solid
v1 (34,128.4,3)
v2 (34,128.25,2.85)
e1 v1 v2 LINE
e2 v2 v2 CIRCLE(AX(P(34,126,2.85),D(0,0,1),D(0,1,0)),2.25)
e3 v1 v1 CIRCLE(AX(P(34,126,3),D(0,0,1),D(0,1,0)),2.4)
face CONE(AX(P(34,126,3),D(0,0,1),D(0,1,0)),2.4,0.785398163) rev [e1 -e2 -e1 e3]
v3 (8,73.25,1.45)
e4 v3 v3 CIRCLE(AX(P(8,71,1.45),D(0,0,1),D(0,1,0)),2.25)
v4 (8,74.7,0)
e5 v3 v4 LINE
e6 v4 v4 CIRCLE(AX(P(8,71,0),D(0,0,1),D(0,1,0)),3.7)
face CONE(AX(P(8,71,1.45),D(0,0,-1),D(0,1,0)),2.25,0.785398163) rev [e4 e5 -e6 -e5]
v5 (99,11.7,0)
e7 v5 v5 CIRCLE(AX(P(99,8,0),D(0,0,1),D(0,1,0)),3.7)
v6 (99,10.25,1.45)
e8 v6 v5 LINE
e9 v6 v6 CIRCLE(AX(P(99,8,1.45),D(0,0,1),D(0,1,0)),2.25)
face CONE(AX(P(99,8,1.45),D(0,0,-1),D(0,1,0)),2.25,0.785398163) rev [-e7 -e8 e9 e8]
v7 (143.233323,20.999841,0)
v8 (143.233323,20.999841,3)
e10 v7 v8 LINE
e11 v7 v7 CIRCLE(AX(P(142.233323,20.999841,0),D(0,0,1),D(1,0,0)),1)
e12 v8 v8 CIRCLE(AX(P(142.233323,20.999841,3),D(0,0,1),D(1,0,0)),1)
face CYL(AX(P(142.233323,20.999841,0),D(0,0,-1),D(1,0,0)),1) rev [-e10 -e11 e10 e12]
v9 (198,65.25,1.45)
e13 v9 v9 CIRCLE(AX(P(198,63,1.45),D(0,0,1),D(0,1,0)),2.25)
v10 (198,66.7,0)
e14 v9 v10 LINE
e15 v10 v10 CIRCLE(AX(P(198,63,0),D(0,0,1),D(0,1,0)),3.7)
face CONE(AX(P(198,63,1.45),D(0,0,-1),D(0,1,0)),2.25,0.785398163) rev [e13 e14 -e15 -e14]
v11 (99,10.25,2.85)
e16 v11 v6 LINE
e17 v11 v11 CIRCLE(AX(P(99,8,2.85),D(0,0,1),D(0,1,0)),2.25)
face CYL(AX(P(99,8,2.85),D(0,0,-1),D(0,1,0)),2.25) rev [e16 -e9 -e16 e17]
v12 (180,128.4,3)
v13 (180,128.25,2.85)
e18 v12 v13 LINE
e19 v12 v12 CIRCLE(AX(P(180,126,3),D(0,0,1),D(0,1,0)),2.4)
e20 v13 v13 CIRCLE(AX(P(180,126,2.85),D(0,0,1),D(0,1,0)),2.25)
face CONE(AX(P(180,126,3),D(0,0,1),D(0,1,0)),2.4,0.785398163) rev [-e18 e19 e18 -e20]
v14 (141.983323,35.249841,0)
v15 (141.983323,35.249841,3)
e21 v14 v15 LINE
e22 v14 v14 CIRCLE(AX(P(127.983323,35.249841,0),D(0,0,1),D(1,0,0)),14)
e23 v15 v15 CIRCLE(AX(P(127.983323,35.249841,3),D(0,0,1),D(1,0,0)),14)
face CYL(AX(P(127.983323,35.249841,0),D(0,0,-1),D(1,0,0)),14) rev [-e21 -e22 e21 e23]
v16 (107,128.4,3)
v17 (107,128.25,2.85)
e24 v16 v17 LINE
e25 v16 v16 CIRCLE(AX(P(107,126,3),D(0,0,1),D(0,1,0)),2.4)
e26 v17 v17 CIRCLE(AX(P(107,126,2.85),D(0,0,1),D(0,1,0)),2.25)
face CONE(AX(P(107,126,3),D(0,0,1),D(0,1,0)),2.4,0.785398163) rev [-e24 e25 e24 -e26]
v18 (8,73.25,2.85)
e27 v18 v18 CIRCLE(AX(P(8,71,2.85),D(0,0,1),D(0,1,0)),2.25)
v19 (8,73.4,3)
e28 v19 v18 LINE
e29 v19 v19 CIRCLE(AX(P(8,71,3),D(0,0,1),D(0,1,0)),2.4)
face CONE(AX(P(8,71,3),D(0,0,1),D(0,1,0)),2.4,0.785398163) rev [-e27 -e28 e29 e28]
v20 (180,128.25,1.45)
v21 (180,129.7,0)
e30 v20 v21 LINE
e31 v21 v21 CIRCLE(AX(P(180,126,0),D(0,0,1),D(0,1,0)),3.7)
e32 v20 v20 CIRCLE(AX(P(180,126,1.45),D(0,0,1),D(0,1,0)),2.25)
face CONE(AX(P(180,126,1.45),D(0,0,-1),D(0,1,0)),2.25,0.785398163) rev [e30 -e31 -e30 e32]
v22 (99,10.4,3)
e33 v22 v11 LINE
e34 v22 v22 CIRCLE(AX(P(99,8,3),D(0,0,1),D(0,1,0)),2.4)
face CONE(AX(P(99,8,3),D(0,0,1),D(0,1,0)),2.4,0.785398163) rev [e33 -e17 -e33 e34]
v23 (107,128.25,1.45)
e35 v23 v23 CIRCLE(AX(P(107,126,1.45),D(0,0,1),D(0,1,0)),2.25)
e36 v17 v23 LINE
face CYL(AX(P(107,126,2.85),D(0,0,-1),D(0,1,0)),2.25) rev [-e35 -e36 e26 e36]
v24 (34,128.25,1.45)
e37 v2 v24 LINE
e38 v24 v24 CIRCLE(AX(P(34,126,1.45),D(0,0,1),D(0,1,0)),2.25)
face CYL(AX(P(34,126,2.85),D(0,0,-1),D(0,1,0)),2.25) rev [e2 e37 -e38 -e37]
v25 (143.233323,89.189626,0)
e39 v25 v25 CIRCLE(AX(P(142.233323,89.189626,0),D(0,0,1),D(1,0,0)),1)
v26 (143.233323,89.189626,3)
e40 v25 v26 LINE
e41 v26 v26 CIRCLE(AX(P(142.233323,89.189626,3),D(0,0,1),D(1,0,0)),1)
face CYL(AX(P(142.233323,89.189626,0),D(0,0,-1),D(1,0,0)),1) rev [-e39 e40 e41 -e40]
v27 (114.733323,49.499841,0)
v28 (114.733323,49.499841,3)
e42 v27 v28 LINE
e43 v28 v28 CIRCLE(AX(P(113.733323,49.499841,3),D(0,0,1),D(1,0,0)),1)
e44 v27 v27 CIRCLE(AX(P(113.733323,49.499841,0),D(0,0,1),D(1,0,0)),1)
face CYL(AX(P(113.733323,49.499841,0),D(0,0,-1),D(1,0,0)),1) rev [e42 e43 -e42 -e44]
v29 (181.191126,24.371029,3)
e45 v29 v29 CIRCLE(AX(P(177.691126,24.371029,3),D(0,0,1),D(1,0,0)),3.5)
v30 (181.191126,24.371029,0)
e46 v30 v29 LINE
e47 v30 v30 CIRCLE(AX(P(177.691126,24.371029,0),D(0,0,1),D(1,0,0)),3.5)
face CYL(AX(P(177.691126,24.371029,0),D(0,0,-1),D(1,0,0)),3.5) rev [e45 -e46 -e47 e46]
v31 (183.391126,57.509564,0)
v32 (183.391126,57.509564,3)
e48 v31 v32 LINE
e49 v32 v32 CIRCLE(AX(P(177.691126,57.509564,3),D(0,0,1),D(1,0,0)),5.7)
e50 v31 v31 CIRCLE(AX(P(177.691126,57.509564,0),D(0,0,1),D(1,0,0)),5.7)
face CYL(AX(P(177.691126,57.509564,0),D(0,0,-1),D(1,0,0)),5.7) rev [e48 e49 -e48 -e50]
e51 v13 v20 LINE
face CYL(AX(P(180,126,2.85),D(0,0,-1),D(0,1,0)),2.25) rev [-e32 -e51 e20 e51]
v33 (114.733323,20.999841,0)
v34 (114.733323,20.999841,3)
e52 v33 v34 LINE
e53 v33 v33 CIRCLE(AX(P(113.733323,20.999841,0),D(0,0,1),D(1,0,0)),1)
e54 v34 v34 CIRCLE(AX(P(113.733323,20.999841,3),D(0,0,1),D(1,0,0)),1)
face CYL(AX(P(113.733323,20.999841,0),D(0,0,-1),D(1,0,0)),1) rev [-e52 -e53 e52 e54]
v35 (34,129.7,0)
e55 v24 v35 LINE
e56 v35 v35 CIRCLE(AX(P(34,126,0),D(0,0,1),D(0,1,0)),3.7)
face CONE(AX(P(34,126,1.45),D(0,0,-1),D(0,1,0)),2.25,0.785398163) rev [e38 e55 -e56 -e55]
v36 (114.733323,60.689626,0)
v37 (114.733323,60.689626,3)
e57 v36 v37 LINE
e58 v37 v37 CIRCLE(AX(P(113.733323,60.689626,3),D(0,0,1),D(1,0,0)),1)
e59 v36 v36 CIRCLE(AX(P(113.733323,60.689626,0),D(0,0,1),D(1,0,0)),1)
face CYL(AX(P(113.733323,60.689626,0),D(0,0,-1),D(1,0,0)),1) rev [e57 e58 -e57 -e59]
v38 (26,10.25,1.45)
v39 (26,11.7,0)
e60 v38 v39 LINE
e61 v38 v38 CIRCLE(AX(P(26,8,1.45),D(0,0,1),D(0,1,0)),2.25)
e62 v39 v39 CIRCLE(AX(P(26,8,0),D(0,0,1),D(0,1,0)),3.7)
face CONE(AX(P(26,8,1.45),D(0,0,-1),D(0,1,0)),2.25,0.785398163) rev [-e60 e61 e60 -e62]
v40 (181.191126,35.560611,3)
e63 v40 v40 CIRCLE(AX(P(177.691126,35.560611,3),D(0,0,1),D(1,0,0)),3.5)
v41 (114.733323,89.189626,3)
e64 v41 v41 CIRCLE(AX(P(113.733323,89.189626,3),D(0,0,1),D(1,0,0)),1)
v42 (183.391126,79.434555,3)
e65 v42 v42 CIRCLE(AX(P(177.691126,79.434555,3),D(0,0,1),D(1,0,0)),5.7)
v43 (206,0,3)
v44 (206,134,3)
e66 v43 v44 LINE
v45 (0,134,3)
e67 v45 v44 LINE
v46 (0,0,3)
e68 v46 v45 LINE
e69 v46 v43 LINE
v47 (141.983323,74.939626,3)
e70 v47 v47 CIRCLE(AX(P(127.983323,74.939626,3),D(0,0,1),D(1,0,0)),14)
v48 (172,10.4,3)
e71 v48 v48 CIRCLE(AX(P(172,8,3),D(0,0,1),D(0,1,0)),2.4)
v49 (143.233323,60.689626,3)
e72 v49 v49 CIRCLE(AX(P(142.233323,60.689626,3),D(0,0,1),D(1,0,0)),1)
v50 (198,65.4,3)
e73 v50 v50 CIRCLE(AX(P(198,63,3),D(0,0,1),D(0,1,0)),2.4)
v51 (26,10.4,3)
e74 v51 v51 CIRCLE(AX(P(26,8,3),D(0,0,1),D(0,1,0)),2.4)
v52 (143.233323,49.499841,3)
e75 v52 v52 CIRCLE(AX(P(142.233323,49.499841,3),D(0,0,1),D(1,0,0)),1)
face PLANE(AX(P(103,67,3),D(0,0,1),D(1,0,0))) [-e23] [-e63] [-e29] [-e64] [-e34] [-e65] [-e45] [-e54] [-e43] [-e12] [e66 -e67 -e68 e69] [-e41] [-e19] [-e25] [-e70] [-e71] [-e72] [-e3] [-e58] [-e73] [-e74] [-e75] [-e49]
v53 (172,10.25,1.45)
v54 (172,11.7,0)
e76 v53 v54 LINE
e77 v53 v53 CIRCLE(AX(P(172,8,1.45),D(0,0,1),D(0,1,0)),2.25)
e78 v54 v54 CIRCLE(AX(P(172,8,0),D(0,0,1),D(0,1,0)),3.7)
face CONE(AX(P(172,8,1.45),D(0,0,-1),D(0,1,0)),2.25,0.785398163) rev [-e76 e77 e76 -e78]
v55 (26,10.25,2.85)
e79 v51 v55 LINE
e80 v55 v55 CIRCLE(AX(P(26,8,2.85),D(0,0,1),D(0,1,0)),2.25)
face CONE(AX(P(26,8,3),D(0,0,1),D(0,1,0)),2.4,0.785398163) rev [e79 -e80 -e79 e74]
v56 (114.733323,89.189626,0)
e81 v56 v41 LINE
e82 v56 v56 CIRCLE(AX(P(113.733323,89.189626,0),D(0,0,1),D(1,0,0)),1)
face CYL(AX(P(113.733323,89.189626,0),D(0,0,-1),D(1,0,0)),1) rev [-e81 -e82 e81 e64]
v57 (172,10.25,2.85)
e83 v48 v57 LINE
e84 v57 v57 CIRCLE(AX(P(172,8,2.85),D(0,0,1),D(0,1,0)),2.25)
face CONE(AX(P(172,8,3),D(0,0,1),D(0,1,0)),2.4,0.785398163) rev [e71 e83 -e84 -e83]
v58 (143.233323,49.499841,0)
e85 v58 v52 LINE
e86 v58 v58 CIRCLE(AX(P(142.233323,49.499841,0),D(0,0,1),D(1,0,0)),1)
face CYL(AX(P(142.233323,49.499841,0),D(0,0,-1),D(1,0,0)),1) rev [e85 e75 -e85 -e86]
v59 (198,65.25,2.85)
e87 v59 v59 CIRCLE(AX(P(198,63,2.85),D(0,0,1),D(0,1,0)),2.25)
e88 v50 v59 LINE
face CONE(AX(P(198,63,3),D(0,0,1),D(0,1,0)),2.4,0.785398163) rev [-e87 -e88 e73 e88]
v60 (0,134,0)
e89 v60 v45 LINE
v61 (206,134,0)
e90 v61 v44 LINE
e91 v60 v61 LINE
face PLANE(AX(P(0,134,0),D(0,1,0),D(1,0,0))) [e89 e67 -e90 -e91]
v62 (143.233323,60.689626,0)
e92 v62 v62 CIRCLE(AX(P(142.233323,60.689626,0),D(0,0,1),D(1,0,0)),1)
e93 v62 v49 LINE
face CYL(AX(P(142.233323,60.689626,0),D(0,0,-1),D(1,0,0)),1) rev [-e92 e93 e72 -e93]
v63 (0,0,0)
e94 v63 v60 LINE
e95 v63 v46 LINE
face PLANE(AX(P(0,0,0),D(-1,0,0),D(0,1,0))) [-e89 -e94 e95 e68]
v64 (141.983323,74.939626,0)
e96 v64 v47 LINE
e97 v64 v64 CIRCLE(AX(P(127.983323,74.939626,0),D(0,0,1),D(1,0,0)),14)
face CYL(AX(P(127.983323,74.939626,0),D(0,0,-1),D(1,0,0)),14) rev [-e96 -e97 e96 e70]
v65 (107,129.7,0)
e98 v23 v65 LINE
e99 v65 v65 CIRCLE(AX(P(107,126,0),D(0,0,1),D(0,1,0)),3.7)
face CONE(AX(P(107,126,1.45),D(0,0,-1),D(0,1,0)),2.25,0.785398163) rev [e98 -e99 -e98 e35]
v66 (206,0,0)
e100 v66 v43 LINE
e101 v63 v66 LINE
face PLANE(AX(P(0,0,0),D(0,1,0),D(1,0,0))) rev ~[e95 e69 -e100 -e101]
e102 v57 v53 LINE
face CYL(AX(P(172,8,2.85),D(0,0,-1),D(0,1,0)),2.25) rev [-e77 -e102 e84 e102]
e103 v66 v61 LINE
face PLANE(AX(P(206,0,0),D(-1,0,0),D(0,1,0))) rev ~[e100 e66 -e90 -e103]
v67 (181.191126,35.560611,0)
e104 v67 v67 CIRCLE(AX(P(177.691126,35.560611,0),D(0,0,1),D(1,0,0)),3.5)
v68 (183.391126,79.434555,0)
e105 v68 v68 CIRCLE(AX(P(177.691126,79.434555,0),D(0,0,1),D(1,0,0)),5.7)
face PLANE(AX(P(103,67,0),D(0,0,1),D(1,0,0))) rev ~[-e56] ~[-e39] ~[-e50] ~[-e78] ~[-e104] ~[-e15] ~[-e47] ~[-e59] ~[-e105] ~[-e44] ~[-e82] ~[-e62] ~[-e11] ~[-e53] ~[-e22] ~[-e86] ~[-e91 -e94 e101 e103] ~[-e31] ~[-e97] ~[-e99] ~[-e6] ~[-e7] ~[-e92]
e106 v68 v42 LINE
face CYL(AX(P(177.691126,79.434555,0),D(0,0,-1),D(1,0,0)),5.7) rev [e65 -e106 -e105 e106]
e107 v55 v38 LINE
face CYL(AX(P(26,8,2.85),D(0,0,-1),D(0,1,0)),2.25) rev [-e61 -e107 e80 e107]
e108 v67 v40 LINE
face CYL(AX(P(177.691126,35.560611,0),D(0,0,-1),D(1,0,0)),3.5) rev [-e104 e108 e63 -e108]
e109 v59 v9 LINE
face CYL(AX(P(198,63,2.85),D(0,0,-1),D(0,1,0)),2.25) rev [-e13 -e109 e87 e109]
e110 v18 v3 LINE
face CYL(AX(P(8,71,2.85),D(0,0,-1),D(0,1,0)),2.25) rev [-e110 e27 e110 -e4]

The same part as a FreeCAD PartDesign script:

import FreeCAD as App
import Part
import Sketcher
from FreeCAD import Vector
Q = App.Units.Quantity


def add_polygon(sketch, points):
    """Adds a closed chain of lines whose ends are joined by coincident constraints."""
    first, n = sketch.GeometryCount, len(points)
    for a, b in zip(points, points[1:] + points[:1]):
        sketch.addGeometry(Part.LineSegment(App.Vector(*a, 0), App.Vector(*b, 0)), False)
    for i in range(n):
        sketch.addConstraint(Sketcher.Constraint("Coincident", first + i, 2, first + (i + 1) % n, 1))

doc = App.newDocument("Part")
body = doc.addObject("PartDesign::Body", "Body")

# Sketch on XY plane
sketch1 = doc.addObject("Sketcher::SketchObject", "Sketch")
body.addObject(sketch1)
sketch1.AttachmentSupport = (doc.XY_Plane, [""])
sketch1.MapMode = "FlatFace"
add_polygon(sketch1, [(0, 134), (0, 0), (206, 0), (206, 134)])  # lines 0-3
sketch1.addGeometry(Part.Circle(Vector(113.7, 21, 0), Vector(0, 0, 1), 1), False)  # 4
sketch1.addGeometry(Part.Circle(Vector(128, 35.2, 0), Vector(0, 0, 1), 14), False)  # 5
sketch1.addGeometry(Part.Circle(Vector(142.2, 21, 0), Vector(0, 0, 1), 1), False)  # 6
sketch1.addGeometry(Part.Circle(Vector(113.7, 49.5, 0), Vector(0, 0, 1), 1), False)  # 7
sketch1.addGeometry(Part.Circle(Vector(142.2, 49.5, 0), Vector(0, 0, 1), 1), False)  # 8
sketch1.addGeometry(Part.Circle(Vector(177.7, 24.4, 0), Vector(0, 0, 1), 3.5), False)  # 9
sketch1.addGeometry(Part.Circle(Vector(177.7, 35.6, 0), Vector(0, 0, 1), 3.5), False)  # 10
sketch1.addGeometry(Part.Circle(Vector(113.7, 60.7, 0), Vector(0, 0, 1), 1), False)  # 11
sketch1.addGeometry(Part.Circle(Vector(142.2, 60.7, 0), Vector(0, 0, 1), 1), False)  # 12
sketch1.addGeometry(Part.Circle(Vector(128, 74.9, 0), Vector(0, 0, 1), 14), False)  # 13
sketch1.addGeometry(Part.Circle(Vector(113.7, 89.2, 0), Vector(0, 0, 1), 1), False)  # 14
sketch1.addGeometry(Part.Circle(Vector(142.2, 89.2, 0), Vector(0, 0, 1), 1), False)  # 15
sketch1.addGeometry(Part.Circle(Vector(177.7, 57.5, 0), Vector(0, 0, 1), 5.7), False)  # 16
sketch1.addGeometry(Part.Circle(Vector(177.7, 79.4, 0), Vector(0, 0, 1), 5.7), False)  # 17
sketch1.addConstraint([
    Sketcher.Constraint("Vertical", 0),
    Sketcher.Constraint("Horizontal", 1),
    Sketcher.Constraint("Vertical", 2),
    Sketcher.Constraint("Horizontal", 3),
    Sketcher.Constraint("Coincident", 0, 2, -1, 1),
    Sketcher.Constraint("Equal", 4, 6),
    Sketcher.Constraint("Equal", 6, 7),
    Sketcher.Constraint("Equal", 7, 8),
    Sketcher.Constraint("Equal", 9, 10),
    Sketcher.Constraint("Equal", 8, 11),
    Sketcher.Constraint("Equal", 11, 12),
    Sketcher.Constraint("Equal", 5, 13),
    Sketcher.Constraint("Equal", 12, 14),
    Sketcher.Constraint("Equal", 14, 15),
    Sketcher.Constraint("Equal", 16, 17),
    Sketcher.Constraint("Horizontal", 4, 3, 6, 3),
    Sketcher.Constraint("Horizontal", 7, 3, 8, 3),
    Sketcher.Constraint("Horizontal", 11, 3, 12, 3),
    Sketcher.Constraint("Horizontal", 14, 3, 15, 3),
    Sketcher.Constraint("Vertical", 4, 3, 7, 3),
    Sketcher.Constraint("Vertical", 6, 3, 8, 3),
    Sketcher.Constraint("Vertical", 9, 3, 10, 3),
    Sketcher.Constraint("Vertical", 7, 3, 11, 3),
    Sketcher.Constraint("Vertical", 8, 3, 12, 3),
    Sketcher.Constraint("Vertical", 5, 3, 13, 3),
    Sketcher.Constraint("Vertical", 11, 3, 14, 3),
    Sketcher.Constraint("Vertical", 12, 3, 15, 3),
    Sketcher.Constraint("Vertical", 10, 3, 16, 3),
    Sketcher.Constraint("Vertical", 16, 3, 17, 3),
    Sketcher.Constraint("Diameter", 4, 2.0),
    Sketcher.Constraint("Diameter", 5, 28.0),
    Sketcher.Constraint("Diameter", 9, 7.0),
    Sketcher.Constraint("Diameter", 16, 11.4),
    Sketcher.Constraint("DistanceX", 1, 1, 1, 2, 206.0),
    Sketcher.Constraint("DistanceY", 0, 2, 0, 1, 134.0),
    Sketcher.Constraint("DistanceX", 4, 3, 6, 3, 28.5),
    Sketcher.Constraint("DistanceY", 4, 3, 7, 3, 28.5),
    Sketcher.Constraint("DistanceY", 11, 3, 14, 3, 28.5),
    Sketcher.Constraint("DistanceX", 4, 3, 5, 3, 14.25),
    Sketcher.Constraint("DistanceY", 4, 3, 5, 3, 14.25),
    Sketcher.Constraint("DistanceY", 11, 3, 13, 3, 14.25),
    Sketcher.Constraint("DistanceY", -1, 1, 4, 3, 20.999841),
    Sketcher.Constraint("DistanceY", -1, 1, 9, 3, 24.371029),
    Sketcher.Constraint("DistanceY", -1, 1, 10, 3, 35.560611),
    Sketcher.Constraint("DistanceY", 16, 3, 17, 3, 21.92499),
    Sketcher.Constraint("DistanceY", 17, 3, 15, 3, 9.755072),
    Sketcher.Constraint("DistanceX", -1, 1, 4, 3, 113.733323),
    Sketcher.Constraint("DistanceX", -1, 1, 9, 3, 177.691126),
    Sketcher.Constraint("DistanceY", -1, 1, 11, 3, 60.689626),
])
pad1 = doc.addObject("PartDesign::Pad", "Pad")
body.addObject(pad1)
pad1.Profile = sketch1
pad1.Length = 3

# Sketch on YZ plane
sketch2 = doc.addObject("Sketcher::SketchObject", "Sketch001")
body.addObject(sketch2)
sketch2.AttachmentSupport = (doc.YZ_Plane, [""])
sketch2.MapMode = "FlatFace"
sketch2.AttachmentOffset = App.Placement(Vector(0, 0, 26), App.Rotation())
add_polygon(sketch2, [(8, 3), (8, 0), (11.7, 0), (10.25, 1.45), (10.25, 2.85), (10.4, 3)])  # lines 0-5
sketch2.addGeometry(Part.LineSegment(Vector(8, 0, 0), Vector(8, 3, 0)), True)  # axis
sketch2.addConstraint([
    Sketcher.Constraint("Vertical", 0),
    Sketcher.Constraint("Horizontal", 1),
    Sketcher.Constraint("Vertical", 3),
    Sketcher.Constraint("Horizontal", 5),
    Sketcher.Constraint("Vertical", 6),
    Sketcher.Constraint("Coincident", 6, 1, 0, 2),
    Sketcher.Constraint("PointOnObject", 0, 2, -1),
    Sketcher.Constraint("Perpendicular", 2, 4),
    Sketcher.Constraint("Horizontal", 4, 2, 6, 2),
    Sketcher.Constraint("DistanceY", 0, 2, 0, 1, 3.0),
    Sketcher.Constraint("Angle", 2, Q("135 deg")),
    Sketcher.Constraint("DistanceX", 1, 1, 1, 2, 3.7),
    Sketcher.Constraint("DistanceX", 5, 2, 5, 1, 2.4),
    Sketcher.Constraint("DistanceY", 3, 1, 3, 2, 1.4),
    Sketcher.Constraint("DistanceX", -1, 1, 0, 2, 8.0),
])
groove = doc.addObject("PartDesign::Groove", "Groove")
body.addObject(groove)
groove.Profile = sketch2
groove.ReferenceAxis = (sketch2, ["Axis0"])
groove.Angle = 360
doc.recompute()

linearpattern = doc.addObject("PartDesign::LinearPattern", "LinearPattern")
body.addObject(linearpattern)
linearpattern.Originals = [groove]
linearpattern.Direction = (doc.X_Axis, [""])
linearpattern.Mode = "offset"
linearpattern.Offset = 73
linearpattern.Occurrences = 2
body.Tip = linearpattern
doc.recompute()

linearpattern2 = doc.addObject("PartDesign::LinearPattern", "LinearPattern001")
body.addObject(linearpattern2)
linearpattern2.Originals = [groove]
linearpattern2.Direction = (doc.X_Axis, [""])
linearpattern2.Mode = "offset"
linearpattern2.Offset = 146
linearpattern2.Occurrences = 2
body.Tip = linearpattern2
doc.recompute()

datumline = doc.addObject("PartDesign::Line", "DatumLine")
body.addObject(datumline)
datumline.Placement = App.Placement(Vector(0, 0, 0), App.Rotation(Vector(0, 0, 1), Vector(0.952488425, 0.304574787, 0)))
linearpattern3 = doc.addObject("PartDesign::LinearPattern", "LinearPattern002")
body.addObject(linearpattern3)
linearpattern3.Originals = [groove]
linearpattern3.Direction = (datumline, [""])
linearpattern3.Mode = "offset"
linearpattern3.Offset = 180.579622
linearpattern3.Occurrences = 2
body.Tip = linearpattern3
doc.recompute()

datumline2 = doc.addObject("PartDesign::Line", "DatumLine001")
body.addObject(datumline2)
datumline2.Placement = App.Placement(Vector(0, 0, 0), App.Rotation(Vector(0, 0, 1), Vector(0.793772253, 0.608215103, 0)))
linearpattern4 = doc.addObject("PartDesign::LinearPattern", "LinearPattern003")
body.addObject(linearpattern4)
linearpattern4.Originals = [groove]
linearpattern4.Direction = (datumline2, [""])
linearpattern4.Mode = "offset"
linearpattern4.Offset = 194.010309
linearpattern4.Occurrences = 2
body.Tip = linearpattern4
doc.recompute()

datumline3 = doc.addObject("PartDesign::Line", "DatumLine002")
body.addObject(datumline3)
datumline3.Placement = App.Placement(Vector(0, 0, 0), App.Rotation(Vector(0, 0, 1), Vector(0.565935627, 0.824449432, 0)))
linearpattern5 = doc.addObject("PartDesign::LinearPattern", "LinearPattern004")
body.addObject(linearpattern5)
linearpattern5.Originals = [groove]
linearpattern5.Direction = (datumline3, [""])
linearpattern5.Mode = "offset"
linearpattern5.Offset = 143.125819
linearpattern5.Occurrences = 2
body.Tip = linearpattern5
doc.recompute()

datumline4 = doc.addObject("PartDesign::Line", "DatumLine003")
body.addObject(datumline4)
datumline4.Placement = App.Placement(Vector(0, 0, 0), App.Rotation(Vector(0, 0, 1), Vector(0.067641336, 0.997709702, 0)))
linearpattern6 = doc.addObject("PartDesign::LinearPattern", "LinearPattern005")
body.addObject(linearpattern6)
linearpattern6.Originals = [groove]
linearpattern6.Direction = (datumline4, [""])
linearpattern6.Mode = "offset"
linearpattern6.Offset = 118.270876
linearpattern6.Occurrences = 2
body.Tip = linearpattern6
doc.recompute()

datumline5 = doc.addObject("PartDesign::Line", "DatumLine004")
body.addObject(datumline5)
datumline5.Placement = App.Placement(Vector(0, 0, 0), App.Rotation(Vector(0, 0, 1), Vector(-0.274721128, 0.961523948, 0)))
linearpattern7 = doc.addObject("PartDesign::LinearPattern", "LinearPattern006")
body.addObject(linearpattern7)
linearpattern7.Originals = [groove]
linearpattern7.Direction = (datumline5, [""])
linearpattern7.Mode = "offset"
linearpattern7.Offset = 65.520989
linearpattern7.Occurrences = 2
body.Tip = linearpattern7

doc.recompute()
